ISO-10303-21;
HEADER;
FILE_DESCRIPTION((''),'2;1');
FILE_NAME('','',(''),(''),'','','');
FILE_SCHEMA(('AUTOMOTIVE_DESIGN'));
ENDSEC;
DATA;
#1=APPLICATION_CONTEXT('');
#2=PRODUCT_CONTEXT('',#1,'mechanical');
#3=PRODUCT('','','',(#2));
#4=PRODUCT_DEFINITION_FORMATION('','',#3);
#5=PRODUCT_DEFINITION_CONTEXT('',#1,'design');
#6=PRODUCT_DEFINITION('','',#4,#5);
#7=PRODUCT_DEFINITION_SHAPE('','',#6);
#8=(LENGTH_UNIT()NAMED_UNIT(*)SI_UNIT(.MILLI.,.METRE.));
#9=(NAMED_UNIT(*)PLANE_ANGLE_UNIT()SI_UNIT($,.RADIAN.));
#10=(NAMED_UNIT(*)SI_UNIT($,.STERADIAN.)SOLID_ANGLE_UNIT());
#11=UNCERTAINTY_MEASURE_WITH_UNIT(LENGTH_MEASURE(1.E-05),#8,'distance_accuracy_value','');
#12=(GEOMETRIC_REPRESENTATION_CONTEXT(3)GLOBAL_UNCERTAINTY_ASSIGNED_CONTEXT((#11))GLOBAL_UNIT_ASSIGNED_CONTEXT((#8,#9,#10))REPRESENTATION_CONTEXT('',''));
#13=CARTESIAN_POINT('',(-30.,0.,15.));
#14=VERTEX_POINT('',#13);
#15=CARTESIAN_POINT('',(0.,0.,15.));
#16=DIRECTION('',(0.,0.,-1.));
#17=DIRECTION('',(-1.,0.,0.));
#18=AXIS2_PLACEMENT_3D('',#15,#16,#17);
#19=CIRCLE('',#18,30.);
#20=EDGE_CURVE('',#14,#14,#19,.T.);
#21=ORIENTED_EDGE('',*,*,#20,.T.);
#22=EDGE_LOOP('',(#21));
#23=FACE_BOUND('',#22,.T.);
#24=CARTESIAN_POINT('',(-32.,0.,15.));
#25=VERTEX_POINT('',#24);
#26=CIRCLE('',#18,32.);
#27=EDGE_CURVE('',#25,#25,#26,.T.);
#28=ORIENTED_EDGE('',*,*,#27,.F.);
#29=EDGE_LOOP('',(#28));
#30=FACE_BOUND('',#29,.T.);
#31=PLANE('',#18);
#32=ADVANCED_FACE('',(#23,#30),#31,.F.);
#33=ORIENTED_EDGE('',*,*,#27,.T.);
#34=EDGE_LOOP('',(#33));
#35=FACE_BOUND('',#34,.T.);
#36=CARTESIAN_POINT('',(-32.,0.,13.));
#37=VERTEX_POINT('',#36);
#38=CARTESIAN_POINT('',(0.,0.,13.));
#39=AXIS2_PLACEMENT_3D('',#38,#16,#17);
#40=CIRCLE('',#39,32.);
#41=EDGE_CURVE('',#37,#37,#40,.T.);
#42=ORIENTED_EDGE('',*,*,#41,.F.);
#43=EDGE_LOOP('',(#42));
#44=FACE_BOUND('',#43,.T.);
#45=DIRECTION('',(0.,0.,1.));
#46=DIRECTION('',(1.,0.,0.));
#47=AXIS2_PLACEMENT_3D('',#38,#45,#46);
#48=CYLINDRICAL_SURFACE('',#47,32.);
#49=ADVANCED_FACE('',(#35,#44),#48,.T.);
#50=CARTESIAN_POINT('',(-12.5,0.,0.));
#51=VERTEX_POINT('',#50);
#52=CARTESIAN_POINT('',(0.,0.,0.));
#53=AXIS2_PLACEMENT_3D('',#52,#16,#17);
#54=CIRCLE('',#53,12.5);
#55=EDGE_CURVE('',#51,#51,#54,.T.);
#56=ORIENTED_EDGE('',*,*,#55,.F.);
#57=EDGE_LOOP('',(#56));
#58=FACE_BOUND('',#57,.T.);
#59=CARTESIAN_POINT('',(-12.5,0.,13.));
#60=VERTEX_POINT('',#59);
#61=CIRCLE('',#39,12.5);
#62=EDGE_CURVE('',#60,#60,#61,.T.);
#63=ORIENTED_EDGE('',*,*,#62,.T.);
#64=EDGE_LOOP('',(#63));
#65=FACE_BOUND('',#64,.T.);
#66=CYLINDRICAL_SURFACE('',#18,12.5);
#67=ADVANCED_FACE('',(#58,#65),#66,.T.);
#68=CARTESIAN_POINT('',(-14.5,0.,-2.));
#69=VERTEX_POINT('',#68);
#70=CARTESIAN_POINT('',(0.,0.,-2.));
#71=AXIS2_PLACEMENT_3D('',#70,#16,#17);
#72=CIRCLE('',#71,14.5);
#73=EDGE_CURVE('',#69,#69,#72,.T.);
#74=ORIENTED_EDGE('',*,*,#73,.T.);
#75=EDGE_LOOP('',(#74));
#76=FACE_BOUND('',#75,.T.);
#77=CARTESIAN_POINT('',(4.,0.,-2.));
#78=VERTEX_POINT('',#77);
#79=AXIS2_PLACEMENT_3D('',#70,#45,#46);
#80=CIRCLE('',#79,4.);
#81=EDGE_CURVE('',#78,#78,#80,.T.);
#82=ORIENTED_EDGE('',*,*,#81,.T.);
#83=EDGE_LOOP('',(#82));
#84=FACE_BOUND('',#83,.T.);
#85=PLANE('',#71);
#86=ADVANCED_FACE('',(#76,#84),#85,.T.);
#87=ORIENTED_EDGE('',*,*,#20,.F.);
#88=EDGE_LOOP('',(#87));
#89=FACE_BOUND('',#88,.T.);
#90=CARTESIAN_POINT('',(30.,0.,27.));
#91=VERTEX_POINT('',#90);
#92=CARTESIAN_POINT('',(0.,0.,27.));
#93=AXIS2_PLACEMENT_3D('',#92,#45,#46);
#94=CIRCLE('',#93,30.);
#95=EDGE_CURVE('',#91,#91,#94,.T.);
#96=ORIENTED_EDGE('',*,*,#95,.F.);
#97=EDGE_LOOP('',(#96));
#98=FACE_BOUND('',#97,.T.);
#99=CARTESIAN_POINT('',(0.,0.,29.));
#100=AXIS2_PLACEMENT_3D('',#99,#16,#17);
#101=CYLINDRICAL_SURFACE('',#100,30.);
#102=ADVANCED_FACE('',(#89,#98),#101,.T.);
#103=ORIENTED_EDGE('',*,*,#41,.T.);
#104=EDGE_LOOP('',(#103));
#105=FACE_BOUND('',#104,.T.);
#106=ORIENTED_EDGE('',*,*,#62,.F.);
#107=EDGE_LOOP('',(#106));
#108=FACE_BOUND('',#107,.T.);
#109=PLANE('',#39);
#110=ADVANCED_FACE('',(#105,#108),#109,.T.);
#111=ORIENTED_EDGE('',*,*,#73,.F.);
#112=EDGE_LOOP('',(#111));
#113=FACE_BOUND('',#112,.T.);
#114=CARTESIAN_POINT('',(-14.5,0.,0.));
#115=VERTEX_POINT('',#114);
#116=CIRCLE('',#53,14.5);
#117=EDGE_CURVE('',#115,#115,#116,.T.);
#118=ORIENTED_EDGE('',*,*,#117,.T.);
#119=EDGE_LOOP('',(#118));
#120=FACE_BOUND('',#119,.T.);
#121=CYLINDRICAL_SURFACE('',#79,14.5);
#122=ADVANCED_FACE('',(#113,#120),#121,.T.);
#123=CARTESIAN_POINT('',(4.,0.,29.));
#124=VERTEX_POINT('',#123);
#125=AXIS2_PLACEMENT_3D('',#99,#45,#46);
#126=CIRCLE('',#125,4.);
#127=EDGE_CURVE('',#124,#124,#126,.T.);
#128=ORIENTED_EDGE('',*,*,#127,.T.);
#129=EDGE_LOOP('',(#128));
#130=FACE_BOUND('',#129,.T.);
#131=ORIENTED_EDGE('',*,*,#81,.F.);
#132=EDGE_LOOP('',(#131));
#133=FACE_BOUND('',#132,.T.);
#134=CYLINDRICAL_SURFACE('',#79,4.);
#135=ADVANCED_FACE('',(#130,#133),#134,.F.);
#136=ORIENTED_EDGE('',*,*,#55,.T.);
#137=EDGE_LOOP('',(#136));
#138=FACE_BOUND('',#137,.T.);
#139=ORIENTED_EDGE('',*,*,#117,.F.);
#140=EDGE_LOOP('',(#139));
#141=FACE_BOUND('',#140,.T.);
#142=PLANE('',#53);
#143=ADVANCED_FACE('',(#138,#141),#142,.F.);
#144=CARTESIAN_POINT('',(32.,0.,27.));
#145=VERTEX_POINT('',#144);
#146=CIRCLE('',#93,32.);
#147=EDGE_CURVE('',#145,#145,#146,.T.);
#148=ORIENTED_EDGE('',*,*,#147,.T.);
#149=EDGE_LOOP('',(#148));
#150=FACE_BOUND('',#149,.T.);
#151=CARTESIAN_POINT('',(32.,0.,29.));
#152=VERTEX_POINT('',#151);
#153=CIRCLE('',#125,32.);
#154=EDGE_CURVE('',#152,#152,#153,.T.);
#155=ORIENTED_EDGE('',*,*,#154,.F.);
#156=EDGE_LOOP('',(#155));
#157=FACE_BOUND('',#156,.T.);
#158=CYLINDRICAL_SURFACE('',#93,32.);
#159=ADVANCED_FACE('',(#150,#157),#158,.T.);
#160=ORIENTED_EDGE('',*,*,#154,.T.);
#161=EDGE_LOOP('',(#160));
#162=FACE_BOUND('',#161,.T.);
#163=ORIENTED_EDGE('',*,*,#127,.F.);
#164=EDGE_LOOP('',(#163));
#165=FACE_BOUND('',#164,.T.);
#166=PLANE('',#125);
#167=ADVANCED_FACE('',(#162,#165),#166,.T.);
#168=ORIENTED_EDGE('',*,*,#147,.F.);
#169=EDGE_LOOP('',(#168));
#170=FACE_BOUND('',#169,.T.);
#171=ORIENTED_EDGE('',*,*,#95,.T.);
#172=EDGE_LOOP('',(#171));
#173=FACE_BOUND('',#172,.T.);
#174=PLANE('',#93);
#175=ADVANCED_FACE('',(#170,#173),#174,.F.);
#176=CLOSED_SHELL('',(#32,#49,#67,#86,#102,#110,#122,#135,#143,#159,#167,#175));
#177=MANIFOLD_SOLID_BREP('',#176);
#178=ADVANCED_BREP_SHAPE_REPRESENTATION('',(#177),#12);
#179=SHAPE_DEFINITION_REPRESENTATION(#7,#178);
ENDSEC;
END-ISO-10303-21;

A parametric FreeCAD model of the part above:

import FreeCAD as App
import Part
import Sketcher

doc = App.newDocument("Part")
body = doc.addObject("PartDesign::Body", "Body")

# Sketch on XY plane
sketch1 = doc.addObject("Sketcher::SketchObject", "Sketch")
body.addObject(sketch1)
sketch1.AttachmentSupport = (doc.XY_Plane, [""])
sketch1.MapMode = "FlatFace"
sketch1.addGeometry(Part.Circle(App.Vector(0, 0, 0), App.Vector(0, 0, 1), 12.5), False)
sketch1.addConstraint([
    Sketcher.Constraint("Coincident", 0, 3, -1, 1),
    Sketcher.Constraint("Diameter", 0, 25.0),
])
pad1 = doc.addObject("PartDesign::Pad", "Pad")
body.addObject(pad1)
pad1.Profile = sketch1
pad1.Length = 15

# Sketch on XY plane
sketch2 = doc.addObject("Sketcher::SketchObject", "Sketch001")
body.addObject(sketch2)
sketch2.AttachmentSupport = (doc.XY_Plane, [""])
sketch2.MapMode = "FlatFace"
sketch2.AttachmentOffset = App.Placement(App.Vector(0, 0, 15), App.Rotation())
sketch2.addGeometry(Part.Circle(App.Vector(0, 0, 0), App.Vector(0, 0, 1), 30), False)
sketch2.addConstraint([
    Sketcher.Constraint("Coincident", 0, 3, -1, 1),
    Sketcher.Constraint("Diameter", 0, 60.0),
])
pad2 = doc.addObject("PartDesign::Pad", "Pad001")
body.addObject(pad2)
pad2.Profile = sketch2
pad2.Length = 14

# Sketch on XY plane
sketch3 = doc.addObject("Sketcher::SketchObject", "Sketch002")
body.addObject(sketch3)
sketch3.AttachmentSupport = (doc.XY_Plane, [""])
sketch3.MapMode = "FlatFace"
sketch3.AttachmentOffset = App.Placement(App.Vector(0, 0, 29), App.Rotation())
sketch3.addGeometry(Part.Circle(App.Vector(0, 0, 0), App.Vector(0, 0, 1), 32), False)
sketch3.addConstraint([
    Sketcher.Constraint("Coincident", 0, 3, -1, 1),
    Sketcher.Constraint("Diameter", 0, 64.0),
])
pad3 = doc.addObject("PartDesign::Pad", "Pad002")
body.addObject(pad3)
pad3.Profile = sketch3
pad3.Length = 2
pad3.Reversed = True

# Sketch on XY plane
sketch4 = doc.addObject("Sketcher::SketchObject", "Sketch003")
body.addObject(sketch4)
sketch4.AttachmentSupport = (doc.XY_Plane, [""])
sketch4.MapMode = "FlatFace"
sketch4.AttachmentOffset = App.Placement(App.Vector(0, 0, 15), App.Rotation())
sketch4.addGeometry(Part.Circle(App.Vector(0, 0, 0), App.Vector(0, 0, 1), 32), False)
sketch4.addConstraint([
    Sketcher.Constraint("Coincident", 0, 3, -1, 1),
    Sketcher.Constraint("Diameter", 0, 64.0),
])
pad4 = doc.addObject("PartDesign::Pad", "Pad003")
body.addObject(pad4)
pad4.Profile = sketch4
pad4.Length = 2
pad4.Reversed = True

# Sketch on XY plane
sketch5 = doc.addObject("Sketcher::SketchObject", "Sketch004")
body.addObject(sketch5)
sketch5.AttachmentSupport = (doc.XY_Plane, [""])
sketch5.MapMode = "FlatFace"
sketch5.addGeometry(Part.Circle(App.Vector(0, 0, 0), App.Vector(0, 0, 1), 14.5), False)
sketch5.addConstraint([
    Sketcher.Constraint("Coincident", 0, 3, -1, 1),
    Sketcher.Constraint("Diameter", 0, 29.0),
])
pad5 = doc.addObject("PartDesign::Pad", "Pad004")
body.addObject(pad5)
pad5.Profile = sketch5
pad5.Length = 2
pad5.Reversed = True

# Sketch on XY plane
sketch6 = doc.addObject("Sketcher::SketchObject", "Sketch005")
body.addObject(sketch6)
sketch6.AttachmentSupport = (doc.XY_Plane, [""])
sketch6.MapMode = "FlatFace"
sketch6.AttachmentOffset = App.Placement(App.Vector(0, 0, 29), App.Rotation())
sketch6.addGeometry(Part.Circle(App.Vector(0, 0, 0), App.Vector(0, 0, 1), 4), False)
sketch6.addConstraint([
    Sketcher.Constraint("Coincident", 0, 3, -1, 1),
    Sketcher.Constraint("Diameter", 0, 8.0),
])
pocket1 = doc.addObject("PartDesign::Pocket", "Pocket")
body.addObject(pocket1)
pocket1.Profile = sketch6
pocket1.Type = "ThroughAll"

doc.recompute()
